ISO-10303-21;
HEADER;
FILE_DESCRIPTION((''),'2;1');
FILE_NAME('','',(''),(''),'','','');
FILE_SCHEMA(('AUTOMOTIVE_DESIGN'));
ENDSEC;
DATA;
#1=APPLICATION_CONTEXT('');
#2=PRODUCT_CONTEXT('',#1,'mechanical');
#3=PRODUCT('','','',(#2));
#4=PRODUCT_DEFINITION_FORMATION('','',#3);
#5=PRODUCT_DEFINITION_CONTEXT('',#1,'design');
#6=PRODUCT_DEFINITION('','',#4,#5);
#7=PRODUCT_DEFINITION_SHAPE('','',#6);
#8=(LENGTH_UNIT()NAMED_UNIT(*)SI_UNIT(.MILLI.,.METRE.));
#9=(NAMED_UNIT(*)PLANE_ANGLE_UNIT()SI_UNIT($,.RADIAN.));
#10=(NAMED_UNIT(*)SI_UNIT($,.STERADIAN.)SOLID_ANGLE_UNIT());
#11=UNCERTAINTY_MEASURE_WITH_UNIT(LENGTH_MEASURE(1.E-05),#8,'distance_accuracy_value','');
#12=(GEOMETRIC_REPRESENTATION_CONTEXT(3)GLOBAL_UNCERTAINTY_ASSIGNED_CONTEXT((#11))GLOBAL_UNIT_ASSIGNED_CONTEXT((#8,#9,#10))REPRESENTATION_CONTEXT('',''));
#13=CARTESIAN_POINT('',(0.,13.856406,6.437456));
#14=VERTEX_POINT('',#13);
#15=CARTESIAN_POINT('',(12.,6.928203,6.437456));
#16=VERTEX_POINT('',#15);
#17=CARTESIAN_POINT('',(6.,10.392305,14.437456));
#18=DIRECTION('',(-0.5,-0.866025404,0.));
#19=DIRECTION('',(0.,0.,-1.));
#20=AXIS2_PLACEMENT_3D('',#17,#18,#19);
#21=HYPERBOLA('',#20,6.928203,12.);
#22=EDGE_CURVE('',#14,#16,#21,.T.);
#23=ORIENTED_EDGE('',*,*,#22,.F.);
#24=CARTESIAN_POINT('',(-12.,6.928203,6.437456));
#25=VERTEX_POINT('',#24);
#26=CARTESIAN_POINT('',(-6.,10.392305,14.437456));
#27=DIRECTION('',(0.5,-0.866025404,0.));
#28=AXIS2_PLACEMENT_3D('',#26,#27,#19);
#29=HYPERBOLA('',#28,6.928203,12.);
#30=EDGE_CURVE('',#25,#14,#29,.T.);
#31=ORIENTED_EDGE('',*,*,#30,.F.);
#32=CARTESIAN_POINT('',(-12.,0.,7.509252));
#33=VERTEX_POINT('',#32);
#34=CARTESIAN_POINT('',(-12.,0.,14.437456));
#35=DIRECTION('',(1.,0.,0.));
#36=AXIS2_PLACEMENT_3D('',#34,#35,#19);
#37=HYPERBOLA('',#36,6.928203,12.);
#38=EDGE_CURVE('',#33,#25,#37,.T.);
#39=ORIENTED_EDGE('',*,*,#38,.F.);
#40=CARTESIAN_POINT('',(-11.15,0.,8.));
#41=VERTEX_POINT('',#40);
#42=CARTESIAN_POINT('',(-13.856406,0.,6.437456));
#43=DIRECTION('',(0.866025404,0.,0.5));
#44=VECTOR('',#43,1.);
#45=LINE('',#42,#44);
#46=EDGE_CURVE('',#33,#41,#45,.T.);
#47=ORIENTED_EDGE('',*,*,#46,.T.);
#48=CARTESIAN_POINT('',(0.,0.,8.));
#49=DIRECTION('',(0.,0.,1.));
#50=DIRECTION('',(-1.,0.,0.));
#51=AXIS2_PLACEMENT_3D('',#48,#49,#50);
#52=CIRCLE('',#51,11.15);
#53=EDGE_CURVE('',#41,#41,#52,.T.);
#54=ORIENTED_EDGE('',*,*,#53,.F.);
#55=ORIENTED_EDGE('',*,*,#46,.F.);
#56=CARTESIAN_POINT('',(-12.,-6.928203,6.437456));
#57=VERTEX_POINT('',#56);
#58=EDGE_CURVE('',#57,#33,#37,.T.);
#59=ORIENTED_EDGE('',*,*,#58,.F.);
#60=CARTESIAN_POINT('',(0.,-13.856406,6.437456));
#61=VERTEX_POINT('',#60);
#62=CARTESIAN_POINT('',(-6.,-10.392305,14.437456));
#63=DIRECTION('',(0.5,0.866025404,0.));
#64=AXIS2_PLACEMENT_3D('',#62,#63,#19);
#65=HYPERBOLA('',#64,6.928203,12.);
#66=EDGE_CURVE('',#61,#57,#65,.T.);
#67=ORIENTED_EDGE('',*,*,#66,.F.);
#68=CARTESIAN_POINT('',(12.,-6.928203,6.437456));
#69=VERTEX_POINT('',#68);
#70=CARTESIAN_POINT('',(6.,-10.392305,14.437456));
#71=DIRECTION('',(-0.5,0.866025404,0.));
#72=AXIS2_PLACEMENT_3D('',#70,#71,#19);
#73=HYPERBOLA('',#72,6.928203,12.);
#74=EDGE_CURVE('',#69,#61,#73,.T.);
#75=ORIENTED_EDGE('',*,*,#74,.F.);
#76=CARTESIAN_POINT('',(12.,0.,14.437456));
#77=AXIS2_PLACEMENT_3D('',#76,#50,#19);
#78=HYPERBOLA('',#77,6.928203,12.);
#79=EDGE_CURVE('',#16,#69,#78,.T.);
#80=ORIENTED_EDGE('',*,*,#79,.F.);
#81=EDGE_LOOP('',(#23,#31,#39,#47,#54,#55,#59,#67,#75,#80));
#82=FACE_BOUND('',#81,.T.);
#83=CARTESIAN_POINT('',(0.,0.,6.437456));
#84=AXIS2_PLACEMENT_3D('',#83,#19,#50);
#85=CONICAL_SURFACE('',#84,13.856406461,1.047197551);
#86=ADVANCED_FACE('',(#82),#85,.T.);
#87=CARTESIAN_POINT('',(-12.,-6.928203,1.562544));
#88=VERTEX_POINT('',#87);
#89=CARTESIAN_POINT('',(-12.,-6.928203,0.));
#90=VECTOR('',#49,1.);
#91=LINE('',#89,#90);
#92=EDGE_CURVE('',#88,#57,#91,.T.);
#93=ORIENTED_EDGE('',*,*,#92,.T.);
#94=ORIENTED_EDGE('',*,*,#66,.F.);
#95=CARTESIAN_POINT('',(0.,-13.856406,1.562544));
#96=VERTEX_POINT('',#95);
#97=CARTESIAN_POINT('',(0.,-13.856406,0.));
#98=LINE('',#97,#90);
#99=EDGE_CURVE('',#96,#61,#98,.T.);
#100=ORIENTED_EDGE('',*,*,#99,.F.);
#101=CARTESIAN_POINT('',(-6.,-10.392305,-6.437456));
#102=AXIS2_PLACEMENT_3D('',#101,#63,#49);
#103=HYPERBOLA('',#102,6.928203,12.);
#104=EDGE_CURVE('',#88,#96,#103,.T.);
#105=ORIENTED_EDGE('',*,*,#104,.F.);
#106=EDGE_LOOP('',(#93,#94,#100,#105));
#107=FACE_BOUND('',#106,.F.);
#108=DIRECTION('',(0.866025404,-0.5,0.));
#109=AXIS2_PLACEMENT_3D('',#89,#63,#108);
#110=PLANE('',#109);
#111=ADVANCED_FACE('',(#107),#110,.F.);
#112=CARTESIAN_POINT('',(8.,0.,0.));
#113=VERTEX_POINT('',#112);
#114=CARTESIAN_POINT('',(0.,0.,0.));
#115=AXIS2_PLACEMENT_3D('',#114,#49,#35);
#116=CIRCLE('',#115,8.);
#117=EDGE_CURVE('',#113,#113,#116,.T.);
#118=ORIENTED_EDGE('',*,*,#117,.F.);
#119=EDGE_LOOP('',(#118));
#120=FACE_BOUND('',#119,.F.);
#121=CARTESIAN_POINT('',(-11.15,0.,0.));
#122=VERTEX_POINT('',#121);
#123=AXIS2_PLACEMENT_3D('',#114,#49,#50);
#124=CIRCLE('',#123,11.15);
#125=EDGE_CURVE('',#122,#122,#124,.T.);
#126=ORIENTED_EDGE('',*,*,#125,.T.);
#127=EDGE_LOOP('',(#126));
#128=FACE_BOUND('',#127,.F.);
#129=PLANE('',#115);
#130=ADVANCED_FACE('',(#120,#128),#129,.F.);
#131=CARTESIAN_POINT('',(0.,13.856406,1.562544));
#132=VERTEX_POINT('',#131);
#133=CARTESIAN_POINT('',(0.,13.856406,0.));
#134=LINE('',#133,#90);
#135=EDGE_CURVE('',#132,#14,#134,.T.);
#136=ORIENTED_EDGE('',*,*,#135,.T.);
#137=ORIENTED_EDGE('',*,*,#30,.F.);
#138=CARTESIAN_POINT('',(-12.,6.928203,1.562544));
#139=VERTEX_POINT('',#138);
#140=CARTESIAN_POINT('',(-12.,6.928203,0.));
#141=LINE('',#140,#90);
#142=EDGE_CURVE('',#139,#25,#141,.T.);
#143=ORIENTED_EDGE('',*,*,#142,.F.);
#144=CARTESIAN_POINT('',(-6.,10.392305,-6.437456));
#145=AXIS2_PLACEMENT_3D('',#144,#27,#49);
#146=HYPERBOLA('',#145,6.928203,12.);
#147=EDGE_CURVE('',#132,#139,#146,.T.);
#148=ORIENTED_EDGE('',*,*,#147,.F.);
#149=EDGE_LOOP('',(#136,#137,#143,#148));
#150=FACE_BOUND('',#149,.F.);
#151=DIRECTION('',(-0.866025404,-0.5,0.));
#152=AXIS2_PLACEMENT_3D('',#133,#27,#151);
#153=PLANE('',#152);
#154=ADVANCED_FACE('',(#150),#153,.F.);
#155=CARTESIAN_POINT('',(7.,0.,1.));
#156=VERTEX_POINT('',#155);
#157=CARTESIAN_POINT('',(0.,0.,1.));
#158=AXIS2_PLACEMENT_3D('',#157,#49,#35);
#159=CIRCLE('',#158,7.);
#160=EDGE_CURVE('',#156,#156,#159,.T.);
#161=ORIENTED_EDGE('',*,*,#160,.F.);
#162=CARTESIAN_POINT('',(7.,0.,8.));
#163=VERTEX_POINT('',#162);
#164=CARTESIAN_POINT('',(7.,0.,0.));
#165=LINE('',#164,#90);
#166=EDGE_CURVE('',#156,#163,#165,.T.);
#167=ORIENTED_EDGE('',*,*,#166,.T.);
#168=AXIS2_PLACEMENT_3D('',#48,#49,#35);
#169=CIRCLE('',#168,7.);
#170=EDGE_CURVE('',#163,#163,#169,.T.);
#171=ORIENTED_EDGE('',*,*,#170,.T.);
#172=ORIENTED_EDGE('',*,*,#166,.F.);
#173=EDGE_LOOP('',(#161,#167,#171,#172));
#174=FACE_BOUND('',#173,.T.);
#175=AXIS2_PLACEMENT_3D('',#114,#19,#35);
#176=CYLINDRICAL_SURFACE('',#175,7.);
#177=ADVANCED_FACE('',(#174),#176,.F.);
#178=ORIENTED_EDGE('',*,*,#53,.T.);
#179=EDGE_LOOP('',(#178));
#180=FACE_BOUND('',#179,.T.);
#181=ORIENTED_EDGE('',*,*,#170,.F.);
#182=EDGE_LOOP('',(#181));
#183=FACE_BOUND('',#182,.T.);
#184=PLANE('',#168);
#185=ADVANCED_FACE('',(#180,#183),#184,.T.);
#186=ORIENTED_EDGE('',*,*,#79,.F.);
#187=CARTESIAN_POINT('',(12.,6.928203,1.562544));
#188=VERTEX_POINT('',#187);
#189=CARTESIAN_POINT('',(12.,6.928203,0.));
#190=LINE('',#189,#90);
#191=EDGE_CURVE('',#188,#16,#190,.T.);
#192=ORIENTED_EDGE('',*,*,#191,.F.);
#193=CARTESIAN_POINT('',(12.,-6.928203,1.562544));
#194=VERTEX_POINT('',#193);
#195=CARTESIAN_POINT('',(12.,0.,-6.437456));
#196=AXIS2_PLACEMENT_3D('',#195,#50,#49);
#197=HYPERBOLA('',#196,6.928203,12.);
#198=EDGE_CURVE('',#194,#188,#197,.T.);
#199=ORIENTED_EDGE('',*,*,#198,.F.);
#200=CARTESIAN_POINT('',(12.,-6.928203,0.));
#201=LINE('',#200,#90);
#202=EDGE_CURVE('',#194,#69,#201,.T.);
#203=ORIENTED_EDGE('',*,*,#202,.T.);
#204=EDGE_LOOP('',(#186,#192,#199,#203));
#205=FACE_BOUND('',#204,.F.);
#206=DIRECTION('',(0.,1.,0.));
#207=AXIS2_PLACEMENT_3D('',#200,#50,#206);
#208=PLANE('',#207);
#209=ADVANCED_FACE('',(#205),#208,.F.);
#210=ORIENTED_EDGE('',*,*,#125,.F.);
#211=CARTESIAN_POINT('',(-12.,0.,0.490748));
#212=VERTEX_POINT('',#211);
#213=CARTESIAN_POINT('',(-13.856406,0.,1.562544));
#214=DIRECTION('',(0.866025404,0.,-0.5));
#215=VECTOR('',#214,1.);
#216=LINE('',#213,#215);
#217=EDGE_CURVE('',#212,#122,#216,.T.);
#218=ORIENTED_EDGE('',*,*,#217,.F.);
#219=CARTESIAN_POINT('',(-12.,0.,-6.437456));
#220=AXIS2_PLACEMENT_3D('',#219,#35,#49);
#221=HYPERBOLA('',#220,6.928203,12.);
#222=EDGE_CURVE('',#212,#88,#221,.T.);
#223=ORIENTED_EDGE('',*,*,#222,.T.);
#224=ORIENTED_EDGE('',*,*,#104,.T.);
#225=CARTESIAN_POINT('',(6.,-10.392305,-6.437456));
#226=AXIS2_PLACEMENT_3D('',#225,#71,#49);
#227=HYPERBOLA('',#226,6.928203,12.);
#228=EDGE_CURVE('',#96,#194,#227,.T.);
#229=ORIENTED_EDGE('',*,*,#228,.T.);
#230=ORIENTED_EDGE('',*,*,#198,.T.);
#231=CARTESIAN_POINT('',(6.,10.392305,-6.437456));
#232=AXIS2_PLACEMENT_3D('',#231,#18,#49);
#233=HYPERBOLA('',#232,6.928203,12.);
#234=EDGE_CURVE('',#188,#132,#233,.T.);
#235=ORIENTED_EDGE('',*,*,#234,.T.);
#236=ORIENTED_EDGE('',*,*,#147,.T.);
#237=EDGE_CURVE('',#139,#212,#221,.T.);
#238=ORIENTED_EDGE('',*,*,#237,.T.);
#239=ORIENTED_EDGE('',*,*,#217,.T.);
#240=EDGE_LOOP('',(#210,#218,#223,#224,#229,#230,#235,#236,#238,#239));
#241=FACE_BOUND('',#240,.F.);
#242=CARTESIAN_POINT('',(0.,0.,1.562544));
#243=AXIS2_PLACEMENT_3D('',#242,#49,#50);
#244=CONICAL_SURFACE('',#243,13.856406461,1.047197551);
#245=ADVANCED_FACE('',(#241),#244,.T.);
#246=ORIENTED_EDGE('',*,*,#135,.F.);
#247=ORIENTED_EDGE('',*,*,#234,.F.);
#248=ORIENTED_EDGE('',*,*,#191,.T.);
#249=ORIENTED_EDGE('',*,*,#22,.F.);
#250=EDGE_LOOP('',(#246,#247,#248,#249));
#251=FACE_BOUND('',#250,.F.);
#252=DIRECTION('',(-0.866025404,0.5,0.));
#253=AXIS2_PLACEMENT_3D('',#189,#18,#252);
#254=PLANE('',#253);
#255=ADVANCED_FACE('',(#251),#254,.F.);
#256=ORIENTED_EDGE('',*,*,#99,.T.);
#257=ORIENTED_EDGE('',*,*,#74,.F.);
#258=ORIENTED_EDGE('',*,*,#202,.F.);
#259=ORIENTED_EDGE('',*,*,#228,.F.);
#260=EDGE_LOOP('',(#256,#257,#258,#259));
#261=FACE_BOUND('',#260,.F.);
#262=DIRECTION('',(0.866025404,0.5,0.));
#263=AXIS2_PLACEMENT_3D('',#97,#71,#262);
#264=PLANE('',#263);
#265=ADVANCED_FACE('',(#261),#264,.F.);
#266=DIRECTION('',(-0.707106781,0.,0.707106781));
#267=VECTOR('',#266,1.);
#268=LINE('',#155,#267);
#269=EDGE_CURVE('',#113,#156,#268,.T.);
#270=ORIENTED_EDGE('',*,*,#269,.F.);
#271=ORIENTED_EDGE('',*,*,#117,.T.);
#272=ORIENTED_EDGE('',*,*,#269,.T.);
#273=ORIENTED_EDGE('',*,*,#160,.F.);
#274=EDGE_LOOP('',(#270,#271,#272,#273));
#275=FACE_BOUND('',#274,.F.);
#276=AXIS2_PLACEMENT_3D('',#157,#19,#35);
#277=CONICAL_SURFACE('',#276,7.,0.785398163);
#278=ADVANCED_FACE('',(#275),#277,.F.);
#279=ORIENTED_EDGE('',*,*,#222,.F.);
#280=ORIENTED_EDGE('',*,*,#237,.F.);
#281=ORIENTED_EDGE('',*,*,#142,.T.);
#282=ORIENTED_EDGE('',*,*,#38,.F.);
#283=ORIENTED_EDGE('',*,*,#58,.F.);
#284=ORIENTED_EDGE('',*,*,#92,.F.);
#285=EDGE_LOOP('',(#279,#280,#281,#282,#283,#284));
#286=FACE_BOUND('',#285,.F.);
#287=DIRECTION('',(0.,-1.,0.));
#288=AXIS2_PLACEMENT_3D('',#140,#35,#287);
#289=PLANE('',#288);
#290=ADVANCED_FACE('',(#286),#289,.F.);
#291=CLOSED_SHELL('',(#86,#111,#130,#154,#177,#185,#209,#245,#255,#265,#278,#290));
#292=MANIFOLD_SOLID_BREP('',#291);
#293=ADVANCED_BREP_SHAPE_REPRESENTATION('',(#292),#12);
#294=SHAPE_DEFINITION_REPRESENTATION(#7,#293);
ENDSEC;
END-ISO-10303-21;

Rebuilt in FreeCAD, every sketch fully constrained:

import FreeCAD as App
import Part
import Sketcher
from FreeCAD import Vector
Q = App.Units.Quantity


def edges_at(feature, points):
    """Names of the edges that pass closest to the given points."""
    edges = feature.Shape.Edges
    near = lambda p: min(range(len(edges)), key=lambda i: edges[i].distToShape(Part.Vertex(*p))[0])
    return sorted({f"Edge{near(p) + 1}" for p in points})

doc = App.newDocument("Part")
body = doc.addObject("PartDesign::Body", "Body")

# Sketch on XY plane
sketch1 = body.newObject("Sketcher::SketchObject", "Sketch")
sketch1.AttachmentSupport = (doc.getObject("XY_Plane"), [""])
sketch1.MapMode = "FlatFace"
sketch1.addGeometry([
    Part.LineSegment(Vector(0, 13.856406, 0), Vector(-12, 6.928203, 0)),  # 0
    Part.LineSegment(Vector(-12, 6.928203, 0), Vector(-12, -6.928203, 0)),  # 1
    Part.LineSegment(Vector(-12, -6.928203, 0), Vector(0, -13.856406, 0)),  # 2
    Part.LineSegment(Vector(0, -13.856406, 0), Vector(12, -6.928203, 0)),  # 3
    Part.LineSegment(Vector(12, -6.928203, 0), Vector(12, 6.928203, 0)),  # 4
    Part.LineSegment(Vector(12, 6.928203, 0), Vector(0, 13.856406, 0)),  # 5
    Part.Circle(Vector(0, 0, 0), Vector(0, 0, 1), 7),  # 6
], False)
sketch1.addConstraint([
    Sketcher.Constraint("Coincident", 0, 2, 1, 1),
    Sketcher.Constraint("Coincident", 1, 2, 2, 1),
    Sketcher.Constraint("Coincident", 2, 2, 3, 1),
    Sketcher.Constraint("Coincident", 3, 2, 4, 1),
    Sketcher.Constraint("Coincident", 4, 2, 5, 1),
    Sketcher.Constraint("Coincident", 5, 2, 0, 1),
    Sketcher.Constraint("Vertical", 1),
    Sketcher.Constraint("Vertical", 4),
    Sketcher.Constraint("Coincident", 6, 3, -1, 1),
    Sketcher.Constraint("Symmetric", 0, 2, 3, 2, -1, 1),
    Sketcher.Constraint("Symmetric", 2, 2, 5, 2, -1, 1),
    Sketcher.Constraint("PointOnObject", 2, 2, -2),
    Sketcher.Constraint("Parallel", 2, 5),
    Sketcher.Constraint("Horizontal", 1, 2, 3, 2),
    Sketcher.Constraint("Diameter", 6, 14.0),
    Sketcher.Constraint("Angle", 0, Q("-150 deg")),
    Sketcher.Constraint("DistanceX", 0, 2, -1, 1, 12.0),
    Sketcher.Constraint("DistanceY", 1, 2, 1, 1, 13.856406),
])
pad1 = body.newObject("PartDesign::Pad", "Pad")
pad1.Profile = sketch1
pad1.Length = 8

# Sketch on YZ plane
sketch2 = body.newObject("Sketcher::SketchObject", "Sketch001")
sketch2.AttachmentSupport = (doc.getObject("YZ_Plane"), [""])
sketch2.MapMode = "FlatFace"
sketch2.addGeometry([
    Part.LineSegment(Vector(13.856406, 0, 0), Vector(13.856406, 1.562544, 0)),  # 0
    Part.LineSegment(Vector(13.856406, 1.562544, 0), Vector(11.15, 0, 0)),  # 1
    Part.LineSegment(Vector(11.15, 0, 0), Vector(13.856406, 0, 0)),  # 2
    Part.LineSegment(Vector(13.856406, 8, 0), Vector(11.15, 8, 0)),  # 3
    Part.LineSegment(Vector(11.15, 8, 0), Vector(13.856406, 6.437456, 0)),  # 4
    Part.LineSegment(Vector(13.856406, 6.437456, 0), Vector(13.856406, 8, 0)),  # 5
], False)
sketch2.addConstraint([
    Sketcher.Constraint("Coincident", 0, 2, 1, 1),
    Sketcher.Constraint("Coincident", 1, 2, 2, 1),
    Sketcher.Constraint("Coincident", 2, 2, 0, 1),
    Sketcher.Constraint("Coincident", 3, 2, 4, 1),
    Sketcher.Constraint("Coincident", 4, 2, 5, 1),
    Sketcher.Constraint("Coincident", 5, 2, 3, 1),
    Sketcher.Constraint("Vertical", 0),
    Sketcher.Constraint("Horizontal", 2),
    Sketcher.Constraint("Horizontal", 3),
    Sketcher.Constraint("Vertical", 5),
    Sketcher.Constraint("PointOnObject", 1, 2, -1),
    Sketcher.Constraint("Vertical", 1, 2, 3, 2),
    Sketcher.Constraint("Vertical", 2, 2, 4, 2),
    Sketcher.Constraint("Equal", 0, 5),
    Sketcher.Constraint("Angle", 1, Q("-150 deg")),
    Sketcher.Constraint("DistanceY", -1, 1, 3, 2, 8.0),
    Sketcher.Constraint("DistanceX", -1, 1, 1, 2, 11.15),
    Sketcher.Constraint("Distance", 1, 3.125089),
])
groove = body.newObject("PartDesign::Groove", "Groove")
groove.Profile = sketch2
groove.ReferenceAxis = (sketch2, ["V_Axis"])
groove.Angle = 360
doc.recompute()

chamfer = body.newObject("PartDesign::Chamfer", "Chamfer")
chamfer.Base = (groove, edges_at(groove, [(-7, 0, 0)]))
chamfer.Size = 1

doc.recompute()
